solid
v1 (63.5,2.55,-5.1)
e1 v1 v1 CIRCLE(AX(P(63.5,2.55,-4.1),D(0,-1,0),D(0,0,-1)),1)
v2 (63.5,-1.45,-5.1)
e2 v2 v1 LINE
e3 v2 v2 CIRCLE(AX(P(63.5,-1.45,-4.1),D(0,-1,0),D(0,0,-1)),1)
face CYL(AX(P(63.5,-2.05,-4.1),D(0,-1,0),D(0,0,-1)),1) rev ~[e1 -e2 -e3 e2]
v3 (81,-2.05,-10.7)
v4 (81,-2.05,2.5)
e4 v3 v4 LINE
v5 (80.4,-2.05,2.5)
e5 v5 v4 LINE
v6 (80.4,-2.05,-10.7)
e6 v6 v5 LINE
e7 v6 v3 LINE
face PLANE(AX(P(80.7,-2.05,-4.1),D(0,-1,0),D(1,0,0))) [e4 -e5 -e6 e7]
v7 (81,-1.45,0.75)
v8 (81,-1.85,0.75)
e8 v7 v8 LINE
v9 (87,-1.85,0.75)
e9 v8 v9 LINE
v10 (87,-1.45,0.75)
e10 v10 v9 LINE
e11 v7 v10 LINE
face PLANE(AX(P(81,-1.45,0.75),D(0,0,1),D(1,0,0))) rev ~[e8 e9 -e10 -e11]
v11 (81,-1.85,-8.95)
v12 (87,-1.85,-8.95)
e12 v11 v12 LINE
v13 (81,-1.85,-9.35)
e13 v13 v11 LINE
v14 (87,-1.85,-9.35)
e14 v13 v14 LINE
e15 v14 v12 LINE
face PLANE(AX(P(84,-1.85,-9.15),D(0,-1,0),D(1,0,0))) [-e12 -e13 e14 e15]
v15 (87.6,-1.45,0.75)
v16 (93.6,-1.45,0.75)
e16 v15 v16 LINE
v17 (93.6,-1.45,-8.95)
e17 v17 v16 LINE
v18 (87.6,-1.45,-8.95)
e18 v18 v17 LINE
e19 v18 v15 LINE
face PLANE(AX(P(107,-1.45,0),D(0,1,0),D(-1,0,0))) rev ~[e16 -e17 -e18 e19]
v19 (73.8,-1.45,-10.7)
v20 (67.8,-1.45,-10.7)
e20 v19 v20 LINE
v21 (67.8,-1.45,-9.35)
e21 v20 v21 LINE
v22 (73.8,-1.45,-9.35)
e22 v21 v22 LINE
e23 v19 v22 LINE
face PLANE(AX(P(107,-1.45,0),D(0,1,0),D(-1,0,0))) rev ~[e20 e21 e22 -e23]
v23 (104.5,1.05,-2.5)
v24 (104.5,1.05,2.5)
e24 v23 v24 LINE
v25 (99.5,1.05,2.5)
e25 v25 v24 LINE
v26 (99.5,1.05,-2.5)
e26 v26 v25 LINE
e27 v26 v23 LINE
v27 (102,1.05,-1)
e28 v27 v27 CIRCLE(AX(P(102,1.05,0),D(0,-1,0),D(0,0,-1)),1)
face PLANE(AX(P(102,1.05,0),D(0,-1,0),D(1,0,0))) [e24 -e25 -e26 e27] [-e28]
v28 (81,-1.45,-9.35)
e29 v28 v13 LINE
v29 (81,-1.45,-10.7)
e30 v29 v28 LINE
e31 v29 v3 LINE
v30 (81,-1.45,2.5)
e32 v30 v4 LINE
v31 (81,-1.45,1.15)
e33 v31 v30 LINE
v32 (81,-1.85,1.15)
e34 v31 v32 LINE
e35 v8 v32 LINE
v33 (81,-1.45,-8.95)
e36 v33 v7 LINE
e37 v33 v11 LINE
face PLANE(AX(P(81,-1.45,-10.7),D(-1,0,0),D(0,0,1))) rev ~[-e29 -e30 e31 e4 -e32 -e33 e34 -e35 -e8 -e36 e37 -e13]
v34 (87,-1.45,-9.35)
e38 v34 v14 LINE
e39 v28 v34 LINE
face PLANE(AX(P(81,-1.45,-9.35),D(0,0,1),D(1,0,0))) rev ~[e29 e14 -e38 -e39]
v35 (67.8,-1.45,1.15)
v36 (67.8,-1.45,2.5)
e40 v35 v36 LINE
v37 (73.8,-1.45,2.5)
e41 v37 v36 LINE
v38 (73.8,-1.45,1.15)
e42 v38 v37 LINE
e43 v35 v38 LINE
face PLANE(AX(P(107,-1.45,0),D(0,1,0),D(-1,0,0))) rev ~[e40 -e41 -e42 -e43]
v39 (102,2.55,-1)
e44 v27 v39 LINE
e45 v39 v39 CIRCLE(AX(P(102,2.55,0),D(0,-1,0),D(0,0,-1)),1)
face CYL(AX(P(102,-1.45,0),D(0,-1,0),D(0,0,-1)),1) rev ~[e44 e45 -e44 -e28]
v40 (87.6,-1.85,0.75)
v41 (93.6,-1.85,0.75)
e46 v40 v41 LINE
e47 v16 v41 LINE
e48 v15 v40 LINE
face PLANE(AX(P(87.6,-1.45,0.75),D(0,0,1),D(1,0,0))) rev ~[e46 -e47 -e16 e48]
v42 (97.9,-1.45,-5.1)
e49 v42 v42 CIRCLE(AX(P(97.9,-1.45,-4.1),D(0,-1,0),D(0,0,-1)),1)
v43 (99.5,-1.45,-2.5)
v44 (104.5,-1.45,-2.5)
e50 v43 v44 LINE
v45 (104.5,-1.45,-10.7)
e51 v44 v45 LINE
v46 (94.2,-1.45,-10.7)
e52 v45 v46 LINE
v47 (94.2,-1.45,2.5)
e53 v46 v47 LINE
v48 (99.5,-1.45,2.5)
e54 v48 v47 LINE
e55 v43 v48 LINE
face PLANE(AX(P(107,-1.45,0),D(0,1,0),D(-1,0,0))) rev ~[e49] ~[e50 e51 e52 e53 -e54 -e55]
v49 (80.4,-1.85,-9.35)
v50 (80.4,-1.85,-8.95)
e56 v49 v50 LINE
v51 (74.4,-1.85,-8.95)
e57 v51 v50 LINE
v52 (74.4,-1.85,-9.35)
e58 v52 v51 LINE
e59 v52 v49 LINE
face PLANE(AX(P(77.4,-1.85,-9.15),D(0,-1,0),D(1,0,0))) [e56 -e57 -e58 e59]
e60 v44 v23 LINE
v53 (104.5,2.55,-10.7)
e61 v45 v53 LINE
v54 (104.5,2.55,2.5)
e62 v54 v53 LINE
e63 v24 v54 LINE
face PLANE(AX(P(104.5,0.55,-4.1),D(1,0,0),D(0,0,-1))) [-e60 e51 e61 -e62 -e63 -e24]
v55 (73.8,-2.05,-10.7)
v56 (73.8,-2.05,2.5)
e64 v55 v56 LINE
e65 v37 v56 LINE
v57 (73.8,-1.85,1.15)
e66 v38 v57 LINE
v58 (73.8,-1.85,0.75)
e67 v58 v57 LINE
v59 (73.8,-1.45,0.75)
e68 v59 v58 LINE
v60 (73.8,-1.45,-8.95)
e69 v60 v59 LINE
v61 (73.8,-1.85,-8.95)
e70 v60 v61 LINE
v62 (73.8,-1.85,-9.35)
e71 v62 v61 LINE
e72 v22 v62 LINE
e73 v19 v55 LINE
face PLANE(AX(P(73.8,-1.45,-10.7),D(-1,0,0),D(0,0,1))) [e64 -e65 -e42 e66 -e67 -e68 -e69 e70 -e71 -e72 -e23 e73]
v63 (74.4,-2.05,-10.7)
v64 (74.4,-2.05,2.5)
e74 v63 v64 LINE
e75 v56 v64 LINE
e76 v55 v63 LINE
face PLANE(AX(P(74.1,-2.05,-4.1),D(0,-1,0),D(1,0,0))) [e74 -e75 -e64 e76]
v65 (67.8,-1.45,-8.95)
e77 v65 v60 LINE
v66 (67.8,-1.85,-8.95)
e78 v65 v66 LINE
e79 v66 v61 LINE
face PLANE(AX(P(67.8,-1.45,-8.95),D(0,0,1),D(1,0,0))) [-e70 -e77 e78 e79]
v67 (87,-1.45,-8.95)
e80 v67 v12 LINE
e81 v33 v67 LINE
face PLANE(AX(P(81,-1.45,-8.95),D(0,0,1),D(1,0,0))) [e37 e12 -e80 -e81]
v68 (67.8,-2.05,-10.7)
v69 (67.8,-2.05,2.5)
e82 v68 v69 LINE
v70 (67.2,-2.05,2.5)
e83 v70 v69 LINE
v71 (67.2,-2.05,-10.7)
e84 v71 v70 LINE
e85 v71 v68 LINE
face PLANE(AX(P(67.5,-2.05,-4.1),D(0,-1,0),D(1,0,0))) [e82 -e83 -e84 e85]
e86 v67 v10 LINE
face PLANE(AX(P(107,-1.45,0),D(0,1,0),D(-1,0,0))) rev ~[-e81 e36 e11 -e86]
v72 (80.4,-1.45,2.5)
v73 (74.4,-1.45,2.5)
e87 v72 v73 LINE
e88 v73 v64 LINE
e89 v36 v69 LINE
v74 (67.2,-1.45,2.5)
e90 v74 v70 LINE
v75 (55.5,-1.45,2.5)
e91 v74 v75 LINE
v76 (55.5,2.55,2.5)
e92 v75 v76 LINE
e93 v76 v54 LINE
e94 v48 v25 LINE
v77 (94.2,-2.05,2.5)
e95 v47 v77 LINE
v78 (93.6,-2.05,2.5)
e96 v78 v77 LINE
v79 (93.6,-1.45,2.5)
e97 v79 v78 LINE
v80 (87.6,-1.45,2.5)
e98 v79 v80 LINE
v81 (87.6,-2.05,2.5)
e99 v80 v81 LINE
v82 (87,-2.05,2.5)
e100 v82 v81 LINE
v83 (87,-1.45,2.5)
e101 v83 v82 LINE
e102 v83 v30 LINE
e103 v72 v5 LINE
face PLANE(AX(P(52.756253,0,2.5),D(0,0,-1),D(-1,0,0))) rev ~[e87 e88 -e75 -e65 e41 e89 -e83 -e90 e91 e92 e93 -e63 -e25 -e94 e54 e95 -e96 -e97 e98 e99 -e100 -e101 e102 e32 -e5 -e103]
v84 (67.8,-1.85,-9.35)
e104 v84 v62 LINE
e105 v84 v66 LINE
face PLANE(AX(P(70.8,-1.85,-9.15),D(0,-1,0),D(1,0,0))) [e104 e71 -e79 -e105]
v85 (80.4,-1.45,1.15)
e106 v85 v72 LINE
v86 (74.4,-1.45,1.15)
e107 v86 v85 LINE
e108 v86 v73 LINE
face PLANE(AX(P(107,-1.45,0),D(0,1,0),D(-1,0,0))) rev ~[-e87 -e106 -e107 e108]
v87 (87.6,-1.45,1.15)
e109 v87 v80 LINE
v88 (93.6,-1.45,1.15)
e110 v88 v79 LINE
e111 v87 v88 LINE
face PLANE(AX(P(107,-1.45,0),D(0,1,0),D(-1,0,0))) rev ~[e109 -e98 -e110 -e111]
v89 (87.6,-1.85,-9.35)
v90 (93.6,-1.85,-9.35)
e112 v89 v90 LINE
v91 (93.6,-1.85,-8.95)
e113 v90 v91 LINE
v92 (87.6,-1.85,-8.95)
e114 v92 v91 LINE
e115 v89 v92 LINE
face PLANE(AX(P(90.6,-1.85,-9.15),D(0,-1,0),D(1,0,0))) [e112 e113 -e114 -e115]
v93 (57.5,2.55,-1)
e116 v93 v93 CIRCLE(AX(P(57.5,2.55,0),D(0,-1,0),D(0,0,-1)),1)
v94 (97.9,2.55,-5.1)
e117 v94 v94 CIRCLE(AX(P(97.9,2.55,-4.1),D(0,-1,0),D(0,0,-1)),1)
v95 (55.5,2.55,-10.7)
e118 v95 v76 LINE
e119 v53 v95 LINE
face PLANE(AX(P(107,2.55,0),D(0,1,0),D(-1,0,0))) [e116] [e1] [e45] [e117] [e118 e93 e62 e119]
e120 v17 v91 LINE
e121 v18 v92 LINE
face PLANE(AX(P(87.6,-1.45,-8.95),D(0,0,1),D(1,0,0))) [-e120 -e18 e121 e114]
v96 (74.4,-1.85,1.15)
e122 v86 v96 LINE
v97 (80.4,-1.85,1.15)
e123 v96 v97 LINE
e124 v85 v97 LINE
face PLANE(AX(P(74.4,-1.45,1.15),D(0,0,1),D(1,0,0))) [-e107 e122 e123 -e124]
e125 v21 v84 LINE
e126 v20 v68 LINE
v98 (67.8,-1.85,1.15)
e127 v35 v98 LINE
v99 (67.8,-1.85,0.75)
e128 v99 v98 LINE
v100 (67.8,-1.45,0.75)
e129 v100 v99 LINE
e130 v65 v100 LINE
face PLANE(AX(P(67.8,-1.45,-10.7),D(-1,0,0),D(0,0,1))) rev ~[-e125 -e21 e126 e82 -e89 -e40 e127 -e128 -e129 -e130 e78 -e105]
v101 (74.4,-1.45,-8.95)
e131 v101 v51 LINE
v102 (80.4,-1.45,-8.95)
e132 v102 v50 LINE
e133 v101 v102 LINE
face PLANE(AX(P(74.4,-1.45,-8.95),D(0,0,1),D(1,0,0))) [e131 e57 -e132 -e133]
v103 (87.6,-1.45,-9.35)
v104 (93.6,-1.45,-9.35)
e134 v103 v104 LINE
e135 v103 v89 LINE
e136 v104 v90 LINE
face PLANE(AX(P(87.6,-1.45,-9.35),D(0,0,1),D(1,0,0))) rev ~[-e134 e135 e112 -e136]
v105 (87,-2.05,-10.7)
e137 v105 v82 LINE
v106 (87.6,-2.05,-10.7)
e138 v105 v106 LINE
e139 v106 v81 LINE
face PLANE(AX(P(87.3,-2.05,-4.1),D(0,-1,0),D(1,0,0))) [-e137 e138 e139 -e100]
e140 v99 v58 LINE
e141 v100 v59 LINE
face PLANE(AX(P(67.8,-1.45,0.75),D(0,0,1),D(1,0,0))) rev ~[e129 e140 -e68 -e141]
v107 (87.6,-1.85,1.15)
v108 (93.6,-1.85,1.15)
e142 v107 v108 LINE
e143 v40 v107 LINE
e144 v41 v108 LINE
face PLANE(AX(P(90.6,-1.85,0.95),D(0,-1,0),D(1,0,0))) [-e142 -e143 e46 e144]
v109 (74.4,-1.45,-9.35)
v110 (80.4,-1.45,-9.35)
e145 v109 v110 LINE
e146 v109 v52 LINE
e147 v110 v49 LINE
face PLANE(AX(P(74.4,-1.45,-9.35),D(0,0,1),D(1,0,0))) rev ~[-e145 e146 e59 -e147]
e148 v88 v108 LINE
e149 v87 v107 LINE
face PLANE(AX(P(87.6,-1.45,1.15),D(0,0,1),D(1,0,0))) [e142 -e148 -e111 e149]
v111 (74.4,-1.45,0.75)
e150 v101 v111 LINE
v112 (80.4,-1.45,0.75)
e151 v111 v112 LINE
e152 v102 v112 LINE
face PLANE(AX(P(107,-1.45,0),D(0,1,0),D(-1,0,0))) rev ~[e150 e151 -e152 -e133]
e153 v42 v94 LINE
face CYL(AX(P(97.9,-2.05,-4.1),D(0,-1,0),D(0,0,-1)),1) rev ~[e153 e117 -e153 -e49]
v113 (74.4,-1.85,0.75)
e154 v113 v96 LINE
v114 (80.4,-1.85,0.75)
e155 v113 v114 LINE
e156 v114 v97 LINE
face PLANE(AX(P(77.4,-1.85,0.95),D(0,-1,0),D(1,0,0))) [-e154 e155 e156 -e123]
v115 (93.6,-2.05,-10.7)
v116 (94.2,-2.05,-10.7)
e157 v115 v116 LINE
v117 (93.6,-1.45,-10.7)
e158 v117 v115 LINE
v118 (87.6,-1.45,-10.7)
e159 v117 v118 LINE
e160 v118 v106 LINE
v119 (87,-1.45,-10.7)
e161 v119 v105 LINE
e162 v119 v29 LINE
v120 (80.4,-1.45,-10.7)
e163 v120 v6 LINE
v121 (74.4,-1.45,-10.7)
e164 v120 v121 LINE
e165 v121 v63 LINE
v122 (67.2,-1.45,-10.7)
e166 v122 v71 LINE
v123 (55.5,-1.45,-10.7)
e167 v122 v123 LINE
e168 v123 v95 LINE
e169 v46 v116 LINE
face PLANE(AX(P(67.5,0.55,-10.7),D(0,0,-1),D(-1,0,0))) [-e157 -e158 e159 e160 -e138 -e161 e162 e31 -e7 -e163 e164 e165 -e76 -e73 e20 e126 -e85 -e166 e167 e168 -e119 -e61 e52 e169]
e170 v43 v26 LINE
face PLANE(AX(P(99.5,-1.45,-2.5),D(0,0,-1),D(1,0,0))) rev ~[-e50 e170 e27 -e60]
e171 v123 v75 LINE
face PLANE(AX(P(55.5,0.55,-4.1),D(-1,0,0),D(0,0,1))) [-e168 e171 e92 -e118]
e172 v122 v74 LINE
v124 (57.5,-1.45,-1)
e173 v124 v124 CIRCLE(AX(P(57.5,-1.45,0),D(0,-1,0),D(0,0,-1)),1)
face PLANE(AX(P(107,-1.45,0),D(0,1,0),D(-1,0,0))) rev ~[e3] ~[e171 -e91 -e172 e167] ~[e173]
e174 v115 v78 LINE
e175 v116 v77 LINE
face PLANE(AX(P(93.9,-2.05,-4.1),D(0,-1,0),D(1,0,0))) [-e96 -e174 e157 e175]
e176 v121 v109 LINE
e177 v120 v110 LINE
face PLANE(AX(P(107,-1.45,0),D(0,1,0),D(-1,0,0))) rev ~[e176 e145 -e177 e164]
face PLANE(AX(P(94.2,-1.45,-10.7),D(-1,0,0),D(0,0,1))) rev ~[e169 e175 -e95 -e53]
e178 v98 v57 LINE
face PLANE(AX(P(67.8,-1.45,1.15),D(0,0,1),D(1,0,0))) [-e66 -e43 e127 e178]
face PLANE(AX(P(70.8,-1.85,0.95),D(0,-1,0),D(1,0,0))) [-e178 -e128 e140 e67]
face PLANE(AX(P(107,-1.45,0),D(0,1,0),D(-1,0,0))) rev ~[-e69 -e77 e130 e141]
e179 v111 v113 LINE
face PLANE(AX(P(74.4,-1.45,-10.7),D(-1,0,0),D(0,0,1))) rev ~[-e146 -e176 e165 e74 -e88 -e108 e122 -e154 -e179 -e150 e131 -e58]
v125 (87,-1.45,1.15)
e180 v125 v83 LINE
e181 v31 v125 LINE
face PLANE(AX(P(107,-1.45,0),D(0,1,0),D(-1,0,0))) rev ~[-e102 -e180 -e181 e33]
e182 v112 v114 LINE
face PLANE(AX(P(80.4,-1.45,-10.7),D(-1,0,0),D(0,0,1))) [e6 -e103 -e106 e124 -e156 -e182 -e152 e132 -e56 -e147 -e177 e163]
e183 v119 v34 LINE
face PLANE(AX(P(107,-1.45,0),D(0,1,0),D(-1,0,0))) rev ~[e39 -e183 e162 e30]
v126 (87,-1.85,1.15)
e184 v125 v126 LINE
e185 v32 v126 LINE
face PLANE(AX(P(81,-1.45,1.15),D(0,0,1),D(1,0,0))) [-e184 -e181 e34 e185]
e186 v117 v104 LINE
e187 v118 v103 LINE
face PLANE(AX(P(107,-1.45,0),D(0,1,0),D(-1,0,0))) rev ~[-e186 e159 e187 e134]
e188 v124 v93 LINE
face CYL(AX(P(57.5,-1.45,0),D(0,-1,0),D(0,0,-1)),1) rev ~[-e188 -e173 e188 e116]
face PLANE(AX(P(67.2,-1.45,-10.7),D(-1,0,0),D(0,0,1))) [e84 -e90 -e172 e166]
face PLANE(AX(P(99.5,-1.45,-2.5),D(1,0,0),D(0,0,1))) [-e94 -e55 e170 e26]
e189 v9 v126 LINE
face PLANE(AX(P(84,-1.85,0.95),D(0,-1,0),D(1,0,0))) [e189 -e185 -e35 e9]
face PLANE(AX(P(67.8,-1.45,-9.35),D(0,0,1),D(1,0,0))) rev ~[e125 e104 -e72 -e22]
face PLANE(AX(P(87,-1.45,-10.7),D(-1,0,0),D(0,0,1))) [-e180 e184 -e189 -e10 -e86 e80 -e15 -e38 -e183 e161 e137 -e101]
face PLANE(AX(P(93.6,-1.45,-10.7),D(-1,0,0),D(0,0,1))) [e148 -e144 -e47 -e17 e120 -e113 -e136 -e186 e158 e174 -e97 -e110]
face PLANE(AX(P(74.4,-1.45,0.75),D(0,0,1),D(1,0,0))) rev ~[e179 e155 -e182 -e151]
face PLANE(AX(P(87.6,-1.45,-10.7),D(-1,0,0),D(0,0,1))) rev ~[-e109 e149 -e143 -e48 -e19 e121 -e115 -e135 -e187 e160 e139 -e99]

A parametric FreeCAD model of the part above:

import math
import FreeCAD as App
import Part
import Sketcher


def add_polygon(sketch, points):
    """Adds a closed chain of lines whose ends are joined by coincident constraints."""
    first, n = sketch.GeometryCount, len(points)
    for a, b in zip(points, points[1:] + points[:1]):
        sketch.addGeometry(Part.LineSegment(App.Vector(*a, 0), App.Vector(*b, 0)), False)
    for i in range(n):
        sketch.addConstraint(Sketcher.Constraint("Coincident", first + i, 2, first + (i + 1) % n, 1))

doc = App.newDocument("Part")
body = doc.addObject("PartDesign::Body", "Body")

# Sketch on XY plane
sketch1 = body.newObject("Sketcher::SketchObject", "Sketch")
sketch1.AttachmentSupport = (doc.getObject("XY_Plane"), [""])
sketch1.MapMode = "FlatFace"
sketch1.addGeometry([
    Part.LineSegment(App.Vector(110, 8.4, 0), App.Vector(0, 8.4, 0)),  # 0
    Part.ArcOfCircle(Part.Circle(App.Vector(0, 0, 0), App.Vector(0, 0, 1), 8.4), math.radians(90), math.radians(270)),  # 1
    Part.LineSegment(App.Vector(0, -8.4, 0), App.Vector(110, -8.4, 0)),  # 2
    Part.LineSegment(App.Vector(110, -8.4, 0), App.Vector(110, 8.4, 0)),  # 3
    Part.Circle(App.Vector(0, -6, 0), App.Vector(0, 0, 1), 1.2),  # 4
    Part.Circle(App.Vector(6, 0, 0), App.Vector(0, 0, 1), 1.2),  # 5
    Part.Circle(App.Vector(-6, 0, 0), App.Vector(0, 0, 1), 1.2),  # 6
    Part.Circle(App.Vector(0, 6, 0), App.Vector(0, 0, 1), 1.2),  # 7
], False)
sketch1.addConstraint([
    Sketcher.Constraint("Tangent", 0, 2, 1, 1),
    Sketcher.Constraint("Tangent", 1, 2, 2, 1),
    Sketcher.Constraint("Coincident", 2, 2, 3, 1),
    Sketcher.Constraint("Coincident", 3, 2, 0, 1),
    Sketcher.Constraint("Horizontal", 0),
    Sketcher.Constraint("Horizontal", 2),
    Sketcher.Constraint("Vertical", 3),
    Sketcher.Constraint("Coincident", 1, 3, -1, 1),
    Sketcher.Constraint("Equal", 4, 5),
    Sketcher.Constraint("Equal", 5, 6),
    Sketcher.Constraint("Equal", 6, 7),
    Sketcher.Constraint("Symmetric", 5, 3, 6, 3, -1, 1),
    Sketcher.Constraint("Symmetric", 4, 3, 7, 3, -1, 1),
    Sketcher.Constraint("PointOnObject", 4, 3, -2),
    Sketcher.Constraint("PointOnObject", 5, 3, -1),
    Sketcher.Constraint("Diameter", 4, 2.5),
    Sketcher.Constraint("DistanceX", 0, 2, 0, 1, 110.0),
    Sketcher.Constraint("Radius", 1, 8.45),
    Sketcher.Constraint("DistanceX", 6, 3, 5, 3, 11.9),
    Sketcher.Constraint("DistanceY", 4, 3, 7, 3, 11.9),
])
pad1 = body.newObject("PartDesign::Pad", "Pad")
pad1.Profile = sketch1
pad1.Length = 2.5

# Sketch on XY plane
sketch2 = body.newObject("Sketcher::SketchObject", "Sketch001")
sketch2.AttachmentSupport = (doc.getObject("XY_Plane"), [""])
sketch2.MapMode = "FlatFace"
add_polygon(sketch2, [(110, -1), (110, -8), (28, -8), (28, -1)])  # lines 0-3
sketch2.addConstraint([
    Sketcher.Constraint("Vertical", 0),
    Sketcher.Constraint("Horizontal", 1),
    Sketcher.Constraint("Vertical", 2),
    Sketcher.Constraint("Horizontal", 3),
    Sketcher.Constraint("DistanceX", 1, 2, 1, 1, 82.0),
    Sketcher.Constraint("DistanceY", 0, 2, 0, 1, 7.0),
    Sketcher.Constraint("DistanceX", -1, 1, 0, 2, 110.0),
    Sketcher.Constraint("DistanceY", 0, 2, -1, 1, 8.45),
])
pocket1 = body.newObject("PartDesign::Pocket", "Pocket")
pocket1.Profile = sketch2
pocket1.Length = 2.5
pocket1.Reversed = True

# Sketch on XY plane
sketch3 = body.newObject("Sketcher::SketchObject", "Sketch002")
sketch3.AttachmentSupport = (doc.getObject("XY_Plane"), [""])
sketch3.MapMode = "FlatFace"
add_polygon(sketch3, [(107, 2.5), (107, -1.4), (28, -1.4), (28, 2.5)])  # lines 0-3
sketch3.addConstraint([
    Sketcher.Constraint("Vertical", 0),
    Sketcher.Constraint("Horizontal", 1),
    Sketcher.Constraint("Vertical", 2),
    Sketcher.Constraint("Horizontal", 3),
    Sketcher.Constraint("DistanceX", 1, 2, 1, 1, 79.0),
    Sketcher.Constraint("DistanceY", 0, 2, 0, 1, 4.0),
    Sketcher.Constraint("DistanceX", -1, 1, 0, 2, 107.0),
    Sketcher.Constraint("DistanceY", 0, 2, -1, 1, 1.45),
])
pad2 = body.newObject("PartDesign::Pad", "Pad001")
pad2.Profile = sketch3
pad2.Length = 10.7
pad2.Reversed = True

# Sketch on XZ plane
sketch4 = body.newObject("Sketcher::SketchObject", "Sketch003")
sketch4.AttachmentSupport = (doc.getObject("XZ_Plane"), [""])
sketch4.MapMode = "FlatFace"
sketch4.AttachmentOffset = App.Placement(App.Vector(0, 0, 1.45), App.Rotation())
add_polygon(sketch4, [(73.8, 2.5), (73.8, -10.7), (74.4, -10.7), (74.4, 2.5)])  # lines 0-3
add_polygon(sketch4, [(67.2, 2.5), (67.2, -10.7), (67.8, -10.7), (67.8, 2.5)])  # lines 4-7
add_polygon(sketch4, [(80.4, 2.5), (80.4, -10.7), (81, -10.7), (81, 2.5)])  # lines 8-11
add_polygon(sketch4, [(87, 2.5), (87, -10.7), (87.6, -10.7), (87.6, 2.5)])  # lines 12-15
add_polygon(sketch4, [(93.6, 2.5), (93.6, -10.7), (94.2, -10.7), (94.2, 2.5)])  # lines 16-19
sketch4.addConstraint([
    Sketcher.Constraint("Vertical", 0),
    Sketcher.Constraint("Horizontal", 1),
    Sketcher.Constraint("Vertical", 2),
    Sketcher.Constraint("Horizontal", 3),
    Sketcher.Constraint("Vertical", 4),
    Sketcher.Constraint("Horizontal", 5),
    Sketcher.Constraint("Vertical", 6),
    Sketcher.Constraint("Horizontal", 7),
    Sketcher.Constraint("Vertical", 8),
    Sketcher.Constraint("Horizontal", 9),
    Sketcher.Constraint("Vertical", 10),
    Sketcher.Constraint("Horizontal", 11),
    Sketcher.Constraint("Vertical", 12),
    Sketcher.Constraint("Horizontal", 13),
    Sketcher.Constraint("Vertical", 14),
    Sketcher.Constraint("Horizontal", 15),
    Sketcher.Constraint("Vertical", 16),
    Sketcher.Constraint("Horizontal", 17),
    Sketcher.Constraint("Vertical", 18),
    Sketcher.Constraint("Horizontal", 19),
    Sketcher.Constraint("Horizontal", 1, 2, 4, 2),
    Sketcher.Constraint("Horizontal", 3, 2, 6, 2),
    Sketcher.Constraint("Horizontal", 5, 2, 8, 2),
    Sketcher.Constraint("Horizontal", 7, 2, 10, 2),
    Sketcher.Constraint("Horizontal", 9, 2, 12, 2),
    Sketcher.Constraint("Horizontal", 11, 2, 14, 2),
    Sketcher.Constraint("Horizontal", 13, 2, 16, 2),
    Sketcher.Constraint("Horizontal", 15, 2, 18, 2),
    Sketcher.Constraint("Equal", 3, 5),
    Sketcher.Constraint("Equal", 7, 9),
    Sketcher.Constraint("Equal", 11, 13),
    Sketcher.Constraint("Equal", 15, 17),
    Sketcher.Constraint("DistanceX", 1, 1, 1, 2, 0.6),
    Sketcher.Constraint("DistanceY", 0, 2, 0, 1, 13.2),
    Sketcher.Constraint("DistanceX", -1, 1, 9, 2, 81.0),
    Sketcher.Constraint("DistanceX", -1, 1, 12, 2, 87.0),
    Sketcher.Constraint("DistanceX", 5, 2, 0, 2, 6.0),
    Sketcher.Constraint("DistanceX", 1, 2, 8, 2, 6.0),
    Sketcher.Constraint("DistanceX", 13, 2, 16, 2, 6.0),
    Sketcher.Constraint("DistanceY", 0, 2, -1, 1, 10.7),
])
pad3 = body.newObject("PartDesign::Pad", "Pad002")
pad3.Profile = sketch4
pad3.Length = 0.6

# Sketch on XZ plane
sketch5 = body.newObject("Sketcher::SketchObject", "Sketch004")
sketch5.AttachmentSupport = (doc.getObject("XZ_Plane"), [""])
sketch5.MapMode = "FlatFace"
sketch5.AttachmentOffset = App.Placement(App.Vector(0, 0, 1.45), App.Rotation())
add_polygon(sketch5, [(67.8, 1.15), (67.8, 0.75), (73.8, 0.75), (73.8, 1.15)])  # lines 0-3
add_polygon(sketch5, [(67.8, -8.95), (67.8, -9.35), (73.8, -9.35), (73.8, -8.95)])  # lines 4-7
add_polygon(sketch5, [(74.4, 1.15), (74.4, 0.75), (80.4, 0.75), (80.4, 1.15)])  # lines 8-11
add_polygon(sketch5, [(74.4, -8.95), (74.4, -9.35), (80.4, -9.35), (80.4, -8.95)])  # lines 12-15
add_polygon(sketch5, [(81, 1.15), (81, 0.75), (87, 0.75), (87, 1.15)])  # lines 16-19
add_polygon(sketch5, [(81, -8.95), (81, -9.35), (87, -9.35), (87, -8.95)])  # lines 20-23
add_polygon(sketch5, [(87.6, 1.15), (87.6, 0.75), (93.6, 0.75), (93.6, 1.15)])  # lines 24-27
add_polygon(sketch5, [(87.6, -8.95), (87.6, -9.35), (93.6, -9.35), (93.6, -8.95)])  # lines 28-31
sketch5.addConstraint([
    Sketcher.Constraint("Vertical", 0),
    Sketcher.Constraint("Horizontal", 1),
    Sketcher.Constraint("Vertical", 2),
    Sketcher.Constraint("Horizontal", 3),
    Sketcher.Constraint("Vertical", 4),
    Sketcher.Constraint("Horizontal", 5),
    Sketcher.Constraint("Vertical", 6),
    Sketcher.Constraint("Horizontal", 7),
    Sketcher.Constraint("Vertical", 8),
    Sketcher.Constraint("Horizontal", 9),
    Sketcher.Constraint("Vertical", 10),
    Sketcher.Constraint("Horizontal", 11),
    Sketcher.Constraint("Vertical", 12),
    Sketcher.Constraint("Horizontal", 13),
    Sketcher.Constraint("Vertical", 14),
    Sketcher.Constraint("Horizontal", 15),
    Sketcher.Constraint("Vertical", 16),
    Sketcher.Constraint("Horizontal", 17),
    Sketcher.Constraint("Vertical", 18),
    Sketcher.Constraint("Horizontal", 19),
    Sketcher.Constraint("Vertical", 20),
    Sketcher.Constraint("Horizontal", 21),
    Sketcher.Constraint("Vertical", 22),
    Sketcher.Constraint("Horizontal", 23),
    Sketcher.Constraint("Vertical", 24),
    Sketcher.Constraint("Horizontal", 25),
    Sketcher.Constraint("Vertical", 26),
    Sketcher.Constraint("Horizontal", 27),
    Sketcher.Constraint("Vertical", 28),
    Sketcher.Constraint("Horizontal", 29),
    Sketcher.Constraint("Vertical", 30),
    Sketcher.Constraint("Horizontal", 31),
    Sketcher.Constraint("Horizontal", 1, 2, 8, 2),
    Sketcher.Constraint("Horizontal", 3, 2, 10, 2),
    Sketcher.Constraint("Horizontal", 5, 2, 12, 2),
    Sketcher.Constraint("Horizontal", 7, 2, 14, 2),
    Sketcher.Constraint("Horizontal", 9, 2, 16, 2),
    Sketcher.Constraint("Horizontal", 11, 2, 18, 2),
    Sketcher.Constraint("Horizontal", 13, 2, 20, 2),
    Sketcher.Constraint("Horizontal", 15, 2, 22, 2),
    Sketcher.Constraint("Horizontal", 17, 2, 24, 2),
    Sketcher.Constraint("Horizontal", 19, 2, 26, 2),
    Sketcher.Constraint("Horizontal", 21, 2, 28, 2),
    Sketcher.Constraint("Horizontal", 23, 2, 30, 2),
    Sketcher.Constraint("Vertical", 3, 2, 4, 2),
    Sketcher.Constraint("Vertical", 2, 2, 5, 2),
    Sketcher.Constraint("Vertical", 11, 2, 12, 2),
    Sketcher.Constraint("Vertical", 10, 2, 13, 2),
    Sketcher.Constraint("Vertical", 19, 2, 20, 2),
    Sketcher.Constraint("Vertical", 18, 2, 21, 2),
    Sketcher.Constraint("Vertical", 27, 2, 28, 2),
    Sketcher.Constraint("Vertical", 26, 2, 29, 2),
    Sketcher.Constraint("Equal", 7, 9),
    Sketcher.Constraint("Equal", 15, 17),
    Sketcher.Constraint("Equal", 23, 25),
    Sketcher.Constraint("Equal", 2, 4),
    Sketcher.Constraint("DistanceX", 1, 1, 1, 2, 6.0),
    Sketcher.Constraint("DistanceY", 0, 2, 0, 1, 0.4),
    Sketcher.Constraint("DistanceX", -1, 1, 16, 2, 81.0),
    Sketcher.Constraint("DistanceX", -1, 1, 0, 2, 67.8),
    Sketcher.Constraint("DistanceX", -1, 1, 8, 2, 74.4),
    Sketcher.Constraint("DistanceX", -1, 1, 24, 2, 87.6),
    Sketcher.Constraint("DistanceY", 4, 2, 0, 2, 10.1),
    Sketcher.Constraint("DistanceY", -1, 1, 0, 2, 0.75),
])
pad4 = body.newObject("PartDesign::Pad", "Pad003")
pad4.Profile = sketch5
pad4.Length = 0.4

# Sketch on XZ plane
sketch6 = body.newObject("Sketcher::SketchObject", "Sketch005")
sketch6.AttachmentSupport = (doc.getObject("XZ_Plane"), [""])
sketch6.MapMode = "FlatFace"
sketch6.AttachmentOffset = App.Placement(App.Vector(0, 0, 1.45), App.Rotation())
sketch6.addGeometry([
    Part.Circle(App.Vector(102, 0, 0), App.Vector(0, 0, 1), 1),
    Part.Circle(App.Vector(33, 0, 0), App.Vector(0, 0, 1), 1),
], False)
sketch6.addConstraint([
    Sketcher.Constraint("Equal", 0, 1),
    Sketcher.Constraint("PointOnObject", 0, 3, -1),
    Sketcher.Constraint("PointOnObject", 1, 3, -1),
    Sketcher.Constraint("Diameter", 0, 2.0),
    Sketcher.Constraint("DistanceX", -1, 1, 0, 3, 102.0),
    Sketcher.Constraint("DistanceX", -1, 1, 1, 3, 33.0),
])
pocket2 = body.newObject("PartDesign::Pocket", "Pocket001")
pocket2.Profile = sketch6
pocket2.Length = 5

# Sketch on XZ plane
sketch7 = body.newObject("Sketcher::SketchObject", "Sketch006")
sketch7.AttachmentSupport = (doc.getObject("XZ_Plane"), [""])
sketch7.MapMode = "FlatFace"
sketch7.AttachmentOffset = App.Placement(App.Vector(0, 0, -2.55), App.Rotation())
add_polygon(sketch7, [(64, -7), (64, 0), (72, 0), (72, -7)])  # lines 0-3
sketch7.addConstraint([
    Sketcher.Constraint("Vertical", 0),
    Sketcher.Constraint("Horizontal", 1),
    Sketcher.Constraint("Vertical", 2),
    Sketcher.Constraint("Horizontal", 3),
    Sketcher.Constraint("PointOnObject", 0, 2, -1),
    Sketcher.Constraint("DistanceX", 1, 1, 1, 2, 8.0),
    Sketcher.Constraint("DistanceX", -1, 1, 0, 2, 63.5),
    Sketcher.Constraint("DistanceY", 0, 1, 0, 2, 6.687934),
])
pad5 = body.newObject("PartDesign::Pad", "Pad004")
pad5.Profile = sketch7
pad5.Length = 5.9
pad5.Reversed = True

# Sketch on XY plane
sketch8 = body.newObject("Sketcher::SketchObject", "Sketch007")
sketch8.AttachmentSupport = (doc.getObject("XY_Plane"), [""])
sketch8.MapMode = "FlatFace"
sketch8.AttachmentOffset = App.Placement(App.Vector(0, 0, -6.687934), App.Rotation())
sketch8.addGeometry(Part.Circle(App.Vector(67.5, 4.5, 0), App.Vector(0, 0, 1), 1), False)
sketch8.addConstraint([
    Sketcher.Constraint("Diameter", 0, 2.0),
    Sketcher.Constraint("DistanceX", -1, 1, 0, 3, 67.5),
    Sketcher.Constraint("DistanceY", -1, 1, 0, 3, 4.55),
])
pocket3 = body.newObject("PartDesign::Pocket", "Pocket002")
pocket3.Profile = sketch8
pocket3.Length = 8
pocket3.Reversed = True

# Sketch on XY plane
sketch9 = body.newObject("Sketcher::SketchObject", "Sketch008")
sketch9.AttachmentSupport = (doc.getObject("XY_Plane"), [""])
sketch9.MapMode = "FlatFace"
sketch9.AttachmentOffset = App.Placement(App.Vector(0, 0, 2.5), App.Rotation())
add_polygon(sketch9, [(64, 8), (64, 3), (72, 3), (72, 8)])  # lines 0-3
sketch9.addConstraint([
    Sketcher.Constraint("Vertical", 0),
    Sketcher.Constraint("Horizontal", 1),
    Sketcher.Constraint("Vertical", 2),
    Sketcher.Constraint("Horizontal", 3),
    Sketcher.Constraint("DistanceX", 1, 1, 1, 2, 8.0),
    Sketcher.Constraint("DistanceY", 0, 2, 0, 1, 5.9),
    Sketcher.Constraint("DistanceX", -1, 1, 0, 2, 63.5),
    Sketcher.Constraint("DistanceY", -1, 1, 0, 2, 2.55),
])
pocket4 = body.newObject("PartDesign::Pocket", "Pocket003")
pocket4.Profile = sketch9
pocket4.Length = 5

# Sketch on XY plane
sketch10 = body.newObject("Sketcher::SketchObject", "Sketch009")
sketch10.AttachmentSupport = (doc.getObject("XY_Plane"), [""])
sketch10.MapMode = "FlatFace"
sketch10.addGeometry(Part.LineSegment(App.Vector(28, -8.4, 0), App.Vector(0, -8.4, 0)), False)  # 0
sketch10.addGeometry(Part.ArcOfCircle(Part.Circle(App.Vector(0, 0, 0), App.Vector(0, 0, 1), 8.4), math.radians(90), math.radians(270)), False)  # 1
sketch10.addGeometry(Part.LineSegment(App.Vector(0, 8.4, 0), App.Vector(63.5, 8.4, 0)), False)  # 2
sketch10.addGeometry(Part.LineSegment(App.Vector(63.5, 8.4, 0), App.Vector(63.5, 2.5, 0)), False)  # 3
sketch10.addGeometry(Part.LineSegment(App.Vector(63.5, 2.5, 0), App.Vector(28, 2.5, 0)), False)  # 4
sketch10.addGeometry(Part.LineSegment(App.Vector(28, 2.5, 0), App.Vector(28, -8.4, 0)), False)  # 5
add_polygon(sketch10, [(71.5, 2.5), (71.5, 8.4), (110, 8.4), (110, -1.4), (107, -1.4), (107, 2.5)])  # lines 6-11
sketch10.addConstraint([
    Sketcher.Constraint("Tangent", 0, 2, 1, 2),
    Sketcher.Constraint("Tangent", 1, 1, 2, 1),
    Sketcher.Constraint("Coincident", 2, 2, 3, 1),
    Sketcher.Constraint("Coincident", 3, 2, 4, 1),
    Sketcher.Constraint("Coincident", 4, 2, 5, 1),
    Sketcher.Constraint("Coincident", 5, 2, 0, 1),
    Sketcher.Constraint("Horizontal", 0),
    Sketcher.Constraint("Horizontal", 2),
    Sketcher.Constraint("Vertical", 3),
    Sketcher.Constraint("Horizontal", 4),
    Sketcher.Constraint("Vertical", 5),
    Sketcher.Constraint("Vertical", 6),
    Sketcher.Constraint("Horizontal", 7),
    Sketcher.Constraint("Vertical", 8),
    Sketcher.Constraint("Horizontal", 9),
    Sketcher.Constraint("Vertical", 10),
    Sketcher.Constraint("Horizontal", 11),
    Sketcher.Constraint("Coincident", 1, 3, -1, 1),
    Sketcher.Constraint("Horizontal", 2, 2, 6, 2),
    Sketcher.Constraint("Horizontal", 4, 2, 10, 2),
    Sketcher.Constraint("Equal", 4, 11),
    Sketcher.Constraint("DistanceX", 0, 2, 0, 1, 28.0),
    Sketcher.Constraint("DistanceX", 9, 2, 9, 1, 3.0),
    Sketcher.Constraint("DistanceY", 5, 2, 5, 1, 11.0),
    Sketcher.Constraint("DistanceY", 10, 1, 10, 2, 4.0),
    Sketcher.Constraint("Radius", 1, 8.45),
    Sketcher.Constraint("DistanceX", 2, 1, 2, 2, 63.5),
    Sketcher.Constraint("DistanceX", -1, 1, 7, 2, 110.0),
])
pocket5 = body.newObject("PartDesign::Pocket", "Pocket004")
pocket5.Profile = sketch10
pocket5.Length = 5
pocket5.Reversed = True

# Sketch on YZ plane
sketch11 = body.newObject("Sketcher::SketchObject", "Sketch010")
sketch11.AttachmentSupport = (doc.getObject("YZ_Plane"), [""])
sketch11.MapMode = "FlatFace"
sketch11.AttachmentOffset = App.Placement(App.Vector(0, 0, 63.5), App.Rotation())
add_polygon(sketch11, [(8.4, -6.7), (2.5, -6.7), (2.5, -2.5), (8.4, -2.5)])  # lines 0-3
sketch11.addConstraint([
    Sketcher.Constraint("Horizontal", 0),
    Sketcher.Constraint("Vertical", 1),
    Sketcher.Constraint("Horizontal", 2),
    Sketcher.Constraint("Vertical", 3),
    Sketcher.Constraint("DistanceX", 0, 2, 0, 1, 5.9),
    Sketcher.Constraint("DistanceY", 1, 2, -1, 1, 2.5),
    Sketcher.Constraint("DistanceX", -1, 1, 0, 2, 2.55),
    Sketcher.Constraint("DistanceY", 1, 1, 1, 2, 4.187934),
])
pocket6 = body.newObject("PartDesign::Pocket", "Pocket005")
pocket6.Profile = sketch11
pocket6.Length = 15
pocket6.Reversed = True

# Sketch on YZ plane
sketch12 = body.newObject("Sketcher::SketchObject", "Sketch011")
sketch12.AttachmentSupport = (doc.getObject("YZ_Plane"), [""])
sketch12.MapMode = "FlatFace"
sketch12.AttachmentOffset = App.Placement(App.Vector(0, 0, 28), App.Rotation())
add_polygon(sketch12, [(2.5, -10.7), (-1.4, -10.7), (-1.4, 2.5), (2.5, 2.5)])  # lines 0-3
sketch12.addConstraint([
    Sketcher.Constraint("Horizontal", 0),
    Sketcher.Constraint("Vertical", 1),
    Sketcher.Constraint("Horizontal", 2),
    Sketcher.Constraint("Vertical", 3),
    Sketcher.Constraint("DistanceX", 0, 2, 0, 1, 4.0),
    Sketcher.Constraint("DistanceY", 1, 1, 1, 2, 13.2),
    Sketcher.Constraint("DistanceY", 0, 2, -1, 1, 10.7),
    Sketcher.Constraint("DistanceX", 0, 2, -1, 1, 1.45),
])
pocket7 = body.newObject("PartDesign::Pocket", "Pocket006")
pocket7.Profile = sketch12
pocket7.Length = 2.5
pocket7.Reversed = True

# Sketch on YZ plane
sketch13 = body.newObject("Sketcher::SketchObject", "Sketch012")
sketch13.AttachmentSupport = (doc.getObject("YZ_Plane"), [""])
sketch13.MapMode = "FlatFace"
sketch13.AttachmentOffset = App.Placement(App.Vector(0, 0, 107), App.Rotation())
add_polygon(sketch13, [(2.5, 2.5), (-1.4, 2.5), (-1.4, -10.7), (2.5, -10.7)])  # lines 0-3
sketch13.addConstraint([
    Sketcher.Constraint("Horizontal", 0),
    Sketcher.Constraint("Vertical", 1),
    Sketcher.Constraint("Horizontal", 2),
    Sketcher.Constraint("Vertical", 3),
    Sketcher.Constraint("DistanceX", 0, 2, 0, 1, 4.0),
    Sketcher.Constraint("DistanceY", 1, 2, 1, 1, 13.2),
    Sketcher.Constraint("DistanceY", -1, 1, 0, 2, 2.5),
    Sketcher.Constraint("DistanceX", 0, 2, -1, 1, 1.45),
])
pocket8 = body.newObject("PartDesign::Pocket", "Pocket007")
pocket8.Profile = sketch13
pocket8.Length = 2.5

# Sketch on XZ plane
sketch14 = body.newObject("Sketcher::SketchObject", "Sketch013")
sketch14.AttachmentSupport = (doc.getObject("XZ_Plane"), [""])
sketch14.MapMode = "FlatFace"
sketch14.AttachmentOffset = App.Placement(App.Vector(0, 0, 2.05), App.Rotation())
sketch14.addGeometry([
    Part.Circle(App.Vector(63.5, -4.1, 0), App.Vector(0, 0, 1), 1),
    Part.Circle(App.Vector(97.9, -4.1, 0), App.Vector(0, 0, 1), 1),
], False)
sketch14.addConstraint([
    Sketcher.Constraint("Equal", 0, 1),
    Sketcher.Constraint("Horizontal", 0, 3, 1, 3),
    Sketcher.Constraint("Diameter", 0, 2.0),
    Sketcher.Constraint("DistanceX", -1, 1, 0, 3, 63.5),
    Sketcher.Constraint("DistanceY", 0, 3, -1, 1, 4.1),
    Sketcher.Constraint("DistanceX", -1, 1, 1, 3, 97.9),
])
pocket9 = body.newObject("PartDesign::Pocket", "Pocket008")
pocket9.Profile = sketch14
pocket9.Length = 10

# Sketch on XZ plane
sketch15 = body.newObject("Sketcher::SketchObject", "Sketch014")
sketch15.AttachmentSupport = (doc.getObject("XZ_Plane"), [""])
sketch15.MapMode = "FlatFace"
sketch15.AttachmentOffset = App.Placement(App.Vector(0, 0, 1.45), App.Rotation())
add_polygon(sketch15, [(100, 2), (100, -2), (104, -2), (104, 2)])  # lines 0-3
sketch15.addConstraint([
    Sketcher.Constraint("Vertical", 0),
    Sketcher.Constraint("Horizontal", 1),
    Sketcher.Constraint("Vertical", 2),
    Sketcher.Constraint("Horizontal", 3),
    Sketcher.Constraint("Equal", 3, 0),
    Sketcher.Constraint("DistanceX", 1, 1, 1, 2, 5.0),
    Sketcher.Constraint("DistanceX", -1, 1, 0, 2, 99.5),
    Sketcher.Constraint("DistanceY", 0, 2, -1, 1, 2.5),
])
pocket10 = body.newObject("PartDesign::Pocket", "Pocket009")
pocket10.Profile = sketch15
pocket10.Length = 2.5

# Sketch on YZ plane
sketch16 = body.newObject("Sketcher::SketchObject", "Sketch015")
sketch16.AttachmentSupport = (doc.getObject("YZ_Plane"), [""])
sketch16.MapMode = "FlatFace"
sketch16.AttachmentOffset = App.Placement(App.Vector(0, 0, 30.5), App.Rotation())
add_polygon(sketch16, [(2.5, -10.7), (-1.4, -10.7), (-1.4, 2.5), (2.5, 2.5)])  # lines 0-3
sketch16.addConstraint([
    Sketcher.Constraint("Horizontal", 0),
    Sketcher.Constraint("Vertical", 1),
    Sketcher.Constraint("Horizontal", 2),
    Sketcher.Constraint("Vertical", 3),
    Sketcher.Constraint("DistanceX", 0, 2, 0, 1, 4.0),
    Sketcher.Constraint("DistanceY", 1, 1, 1, 2, 13.2),
    Sketcher.Constraint("DistanceY", 0, 2, -1, 1, 10.7),
    Sketcher.Constraint("DistanceX", 0, 2, -1, 1, 1.45),
])
pocket11 = body.newObject("PartDesign::Pocket", "Pocket010")
pocket11.Profile = sketch16
pocket11.Length = 25
pocket11.Reversed = True

# Sketch on XZ plane
sketch17 = body.newObject("Sketcher::SketchObject", "Sketch016")
sketch17.AttachmentSupport = (doc.getObject("XZ_Plane"), [""])
sketch17.MapMode = "FlatFace"
sketch17.AttachmentOffset = App.Placement(App.Vector(0, 0, 1.45), App.Rotation())
sketch17.addGeometry(Part.Circle(App.Vector(57.5, 0, 0), App.Vector(0, 0, 1), 1), False)
sketch17.addConstraint([
    Sketcher.Constraint("PointOnObject", 0, 3, -1),
    Sketcher.Constraint("Diameter", 0, 2.0),
    Sketcher.Constraint("DistanceX", -1, 1, 0, 3, 57.5),
])
pocket12 = body.newObject("PartDesign::Pocket", "Pocket011")
pocket12.Profile = sketch17
pocket12.Length = 25

doc.recompute()
